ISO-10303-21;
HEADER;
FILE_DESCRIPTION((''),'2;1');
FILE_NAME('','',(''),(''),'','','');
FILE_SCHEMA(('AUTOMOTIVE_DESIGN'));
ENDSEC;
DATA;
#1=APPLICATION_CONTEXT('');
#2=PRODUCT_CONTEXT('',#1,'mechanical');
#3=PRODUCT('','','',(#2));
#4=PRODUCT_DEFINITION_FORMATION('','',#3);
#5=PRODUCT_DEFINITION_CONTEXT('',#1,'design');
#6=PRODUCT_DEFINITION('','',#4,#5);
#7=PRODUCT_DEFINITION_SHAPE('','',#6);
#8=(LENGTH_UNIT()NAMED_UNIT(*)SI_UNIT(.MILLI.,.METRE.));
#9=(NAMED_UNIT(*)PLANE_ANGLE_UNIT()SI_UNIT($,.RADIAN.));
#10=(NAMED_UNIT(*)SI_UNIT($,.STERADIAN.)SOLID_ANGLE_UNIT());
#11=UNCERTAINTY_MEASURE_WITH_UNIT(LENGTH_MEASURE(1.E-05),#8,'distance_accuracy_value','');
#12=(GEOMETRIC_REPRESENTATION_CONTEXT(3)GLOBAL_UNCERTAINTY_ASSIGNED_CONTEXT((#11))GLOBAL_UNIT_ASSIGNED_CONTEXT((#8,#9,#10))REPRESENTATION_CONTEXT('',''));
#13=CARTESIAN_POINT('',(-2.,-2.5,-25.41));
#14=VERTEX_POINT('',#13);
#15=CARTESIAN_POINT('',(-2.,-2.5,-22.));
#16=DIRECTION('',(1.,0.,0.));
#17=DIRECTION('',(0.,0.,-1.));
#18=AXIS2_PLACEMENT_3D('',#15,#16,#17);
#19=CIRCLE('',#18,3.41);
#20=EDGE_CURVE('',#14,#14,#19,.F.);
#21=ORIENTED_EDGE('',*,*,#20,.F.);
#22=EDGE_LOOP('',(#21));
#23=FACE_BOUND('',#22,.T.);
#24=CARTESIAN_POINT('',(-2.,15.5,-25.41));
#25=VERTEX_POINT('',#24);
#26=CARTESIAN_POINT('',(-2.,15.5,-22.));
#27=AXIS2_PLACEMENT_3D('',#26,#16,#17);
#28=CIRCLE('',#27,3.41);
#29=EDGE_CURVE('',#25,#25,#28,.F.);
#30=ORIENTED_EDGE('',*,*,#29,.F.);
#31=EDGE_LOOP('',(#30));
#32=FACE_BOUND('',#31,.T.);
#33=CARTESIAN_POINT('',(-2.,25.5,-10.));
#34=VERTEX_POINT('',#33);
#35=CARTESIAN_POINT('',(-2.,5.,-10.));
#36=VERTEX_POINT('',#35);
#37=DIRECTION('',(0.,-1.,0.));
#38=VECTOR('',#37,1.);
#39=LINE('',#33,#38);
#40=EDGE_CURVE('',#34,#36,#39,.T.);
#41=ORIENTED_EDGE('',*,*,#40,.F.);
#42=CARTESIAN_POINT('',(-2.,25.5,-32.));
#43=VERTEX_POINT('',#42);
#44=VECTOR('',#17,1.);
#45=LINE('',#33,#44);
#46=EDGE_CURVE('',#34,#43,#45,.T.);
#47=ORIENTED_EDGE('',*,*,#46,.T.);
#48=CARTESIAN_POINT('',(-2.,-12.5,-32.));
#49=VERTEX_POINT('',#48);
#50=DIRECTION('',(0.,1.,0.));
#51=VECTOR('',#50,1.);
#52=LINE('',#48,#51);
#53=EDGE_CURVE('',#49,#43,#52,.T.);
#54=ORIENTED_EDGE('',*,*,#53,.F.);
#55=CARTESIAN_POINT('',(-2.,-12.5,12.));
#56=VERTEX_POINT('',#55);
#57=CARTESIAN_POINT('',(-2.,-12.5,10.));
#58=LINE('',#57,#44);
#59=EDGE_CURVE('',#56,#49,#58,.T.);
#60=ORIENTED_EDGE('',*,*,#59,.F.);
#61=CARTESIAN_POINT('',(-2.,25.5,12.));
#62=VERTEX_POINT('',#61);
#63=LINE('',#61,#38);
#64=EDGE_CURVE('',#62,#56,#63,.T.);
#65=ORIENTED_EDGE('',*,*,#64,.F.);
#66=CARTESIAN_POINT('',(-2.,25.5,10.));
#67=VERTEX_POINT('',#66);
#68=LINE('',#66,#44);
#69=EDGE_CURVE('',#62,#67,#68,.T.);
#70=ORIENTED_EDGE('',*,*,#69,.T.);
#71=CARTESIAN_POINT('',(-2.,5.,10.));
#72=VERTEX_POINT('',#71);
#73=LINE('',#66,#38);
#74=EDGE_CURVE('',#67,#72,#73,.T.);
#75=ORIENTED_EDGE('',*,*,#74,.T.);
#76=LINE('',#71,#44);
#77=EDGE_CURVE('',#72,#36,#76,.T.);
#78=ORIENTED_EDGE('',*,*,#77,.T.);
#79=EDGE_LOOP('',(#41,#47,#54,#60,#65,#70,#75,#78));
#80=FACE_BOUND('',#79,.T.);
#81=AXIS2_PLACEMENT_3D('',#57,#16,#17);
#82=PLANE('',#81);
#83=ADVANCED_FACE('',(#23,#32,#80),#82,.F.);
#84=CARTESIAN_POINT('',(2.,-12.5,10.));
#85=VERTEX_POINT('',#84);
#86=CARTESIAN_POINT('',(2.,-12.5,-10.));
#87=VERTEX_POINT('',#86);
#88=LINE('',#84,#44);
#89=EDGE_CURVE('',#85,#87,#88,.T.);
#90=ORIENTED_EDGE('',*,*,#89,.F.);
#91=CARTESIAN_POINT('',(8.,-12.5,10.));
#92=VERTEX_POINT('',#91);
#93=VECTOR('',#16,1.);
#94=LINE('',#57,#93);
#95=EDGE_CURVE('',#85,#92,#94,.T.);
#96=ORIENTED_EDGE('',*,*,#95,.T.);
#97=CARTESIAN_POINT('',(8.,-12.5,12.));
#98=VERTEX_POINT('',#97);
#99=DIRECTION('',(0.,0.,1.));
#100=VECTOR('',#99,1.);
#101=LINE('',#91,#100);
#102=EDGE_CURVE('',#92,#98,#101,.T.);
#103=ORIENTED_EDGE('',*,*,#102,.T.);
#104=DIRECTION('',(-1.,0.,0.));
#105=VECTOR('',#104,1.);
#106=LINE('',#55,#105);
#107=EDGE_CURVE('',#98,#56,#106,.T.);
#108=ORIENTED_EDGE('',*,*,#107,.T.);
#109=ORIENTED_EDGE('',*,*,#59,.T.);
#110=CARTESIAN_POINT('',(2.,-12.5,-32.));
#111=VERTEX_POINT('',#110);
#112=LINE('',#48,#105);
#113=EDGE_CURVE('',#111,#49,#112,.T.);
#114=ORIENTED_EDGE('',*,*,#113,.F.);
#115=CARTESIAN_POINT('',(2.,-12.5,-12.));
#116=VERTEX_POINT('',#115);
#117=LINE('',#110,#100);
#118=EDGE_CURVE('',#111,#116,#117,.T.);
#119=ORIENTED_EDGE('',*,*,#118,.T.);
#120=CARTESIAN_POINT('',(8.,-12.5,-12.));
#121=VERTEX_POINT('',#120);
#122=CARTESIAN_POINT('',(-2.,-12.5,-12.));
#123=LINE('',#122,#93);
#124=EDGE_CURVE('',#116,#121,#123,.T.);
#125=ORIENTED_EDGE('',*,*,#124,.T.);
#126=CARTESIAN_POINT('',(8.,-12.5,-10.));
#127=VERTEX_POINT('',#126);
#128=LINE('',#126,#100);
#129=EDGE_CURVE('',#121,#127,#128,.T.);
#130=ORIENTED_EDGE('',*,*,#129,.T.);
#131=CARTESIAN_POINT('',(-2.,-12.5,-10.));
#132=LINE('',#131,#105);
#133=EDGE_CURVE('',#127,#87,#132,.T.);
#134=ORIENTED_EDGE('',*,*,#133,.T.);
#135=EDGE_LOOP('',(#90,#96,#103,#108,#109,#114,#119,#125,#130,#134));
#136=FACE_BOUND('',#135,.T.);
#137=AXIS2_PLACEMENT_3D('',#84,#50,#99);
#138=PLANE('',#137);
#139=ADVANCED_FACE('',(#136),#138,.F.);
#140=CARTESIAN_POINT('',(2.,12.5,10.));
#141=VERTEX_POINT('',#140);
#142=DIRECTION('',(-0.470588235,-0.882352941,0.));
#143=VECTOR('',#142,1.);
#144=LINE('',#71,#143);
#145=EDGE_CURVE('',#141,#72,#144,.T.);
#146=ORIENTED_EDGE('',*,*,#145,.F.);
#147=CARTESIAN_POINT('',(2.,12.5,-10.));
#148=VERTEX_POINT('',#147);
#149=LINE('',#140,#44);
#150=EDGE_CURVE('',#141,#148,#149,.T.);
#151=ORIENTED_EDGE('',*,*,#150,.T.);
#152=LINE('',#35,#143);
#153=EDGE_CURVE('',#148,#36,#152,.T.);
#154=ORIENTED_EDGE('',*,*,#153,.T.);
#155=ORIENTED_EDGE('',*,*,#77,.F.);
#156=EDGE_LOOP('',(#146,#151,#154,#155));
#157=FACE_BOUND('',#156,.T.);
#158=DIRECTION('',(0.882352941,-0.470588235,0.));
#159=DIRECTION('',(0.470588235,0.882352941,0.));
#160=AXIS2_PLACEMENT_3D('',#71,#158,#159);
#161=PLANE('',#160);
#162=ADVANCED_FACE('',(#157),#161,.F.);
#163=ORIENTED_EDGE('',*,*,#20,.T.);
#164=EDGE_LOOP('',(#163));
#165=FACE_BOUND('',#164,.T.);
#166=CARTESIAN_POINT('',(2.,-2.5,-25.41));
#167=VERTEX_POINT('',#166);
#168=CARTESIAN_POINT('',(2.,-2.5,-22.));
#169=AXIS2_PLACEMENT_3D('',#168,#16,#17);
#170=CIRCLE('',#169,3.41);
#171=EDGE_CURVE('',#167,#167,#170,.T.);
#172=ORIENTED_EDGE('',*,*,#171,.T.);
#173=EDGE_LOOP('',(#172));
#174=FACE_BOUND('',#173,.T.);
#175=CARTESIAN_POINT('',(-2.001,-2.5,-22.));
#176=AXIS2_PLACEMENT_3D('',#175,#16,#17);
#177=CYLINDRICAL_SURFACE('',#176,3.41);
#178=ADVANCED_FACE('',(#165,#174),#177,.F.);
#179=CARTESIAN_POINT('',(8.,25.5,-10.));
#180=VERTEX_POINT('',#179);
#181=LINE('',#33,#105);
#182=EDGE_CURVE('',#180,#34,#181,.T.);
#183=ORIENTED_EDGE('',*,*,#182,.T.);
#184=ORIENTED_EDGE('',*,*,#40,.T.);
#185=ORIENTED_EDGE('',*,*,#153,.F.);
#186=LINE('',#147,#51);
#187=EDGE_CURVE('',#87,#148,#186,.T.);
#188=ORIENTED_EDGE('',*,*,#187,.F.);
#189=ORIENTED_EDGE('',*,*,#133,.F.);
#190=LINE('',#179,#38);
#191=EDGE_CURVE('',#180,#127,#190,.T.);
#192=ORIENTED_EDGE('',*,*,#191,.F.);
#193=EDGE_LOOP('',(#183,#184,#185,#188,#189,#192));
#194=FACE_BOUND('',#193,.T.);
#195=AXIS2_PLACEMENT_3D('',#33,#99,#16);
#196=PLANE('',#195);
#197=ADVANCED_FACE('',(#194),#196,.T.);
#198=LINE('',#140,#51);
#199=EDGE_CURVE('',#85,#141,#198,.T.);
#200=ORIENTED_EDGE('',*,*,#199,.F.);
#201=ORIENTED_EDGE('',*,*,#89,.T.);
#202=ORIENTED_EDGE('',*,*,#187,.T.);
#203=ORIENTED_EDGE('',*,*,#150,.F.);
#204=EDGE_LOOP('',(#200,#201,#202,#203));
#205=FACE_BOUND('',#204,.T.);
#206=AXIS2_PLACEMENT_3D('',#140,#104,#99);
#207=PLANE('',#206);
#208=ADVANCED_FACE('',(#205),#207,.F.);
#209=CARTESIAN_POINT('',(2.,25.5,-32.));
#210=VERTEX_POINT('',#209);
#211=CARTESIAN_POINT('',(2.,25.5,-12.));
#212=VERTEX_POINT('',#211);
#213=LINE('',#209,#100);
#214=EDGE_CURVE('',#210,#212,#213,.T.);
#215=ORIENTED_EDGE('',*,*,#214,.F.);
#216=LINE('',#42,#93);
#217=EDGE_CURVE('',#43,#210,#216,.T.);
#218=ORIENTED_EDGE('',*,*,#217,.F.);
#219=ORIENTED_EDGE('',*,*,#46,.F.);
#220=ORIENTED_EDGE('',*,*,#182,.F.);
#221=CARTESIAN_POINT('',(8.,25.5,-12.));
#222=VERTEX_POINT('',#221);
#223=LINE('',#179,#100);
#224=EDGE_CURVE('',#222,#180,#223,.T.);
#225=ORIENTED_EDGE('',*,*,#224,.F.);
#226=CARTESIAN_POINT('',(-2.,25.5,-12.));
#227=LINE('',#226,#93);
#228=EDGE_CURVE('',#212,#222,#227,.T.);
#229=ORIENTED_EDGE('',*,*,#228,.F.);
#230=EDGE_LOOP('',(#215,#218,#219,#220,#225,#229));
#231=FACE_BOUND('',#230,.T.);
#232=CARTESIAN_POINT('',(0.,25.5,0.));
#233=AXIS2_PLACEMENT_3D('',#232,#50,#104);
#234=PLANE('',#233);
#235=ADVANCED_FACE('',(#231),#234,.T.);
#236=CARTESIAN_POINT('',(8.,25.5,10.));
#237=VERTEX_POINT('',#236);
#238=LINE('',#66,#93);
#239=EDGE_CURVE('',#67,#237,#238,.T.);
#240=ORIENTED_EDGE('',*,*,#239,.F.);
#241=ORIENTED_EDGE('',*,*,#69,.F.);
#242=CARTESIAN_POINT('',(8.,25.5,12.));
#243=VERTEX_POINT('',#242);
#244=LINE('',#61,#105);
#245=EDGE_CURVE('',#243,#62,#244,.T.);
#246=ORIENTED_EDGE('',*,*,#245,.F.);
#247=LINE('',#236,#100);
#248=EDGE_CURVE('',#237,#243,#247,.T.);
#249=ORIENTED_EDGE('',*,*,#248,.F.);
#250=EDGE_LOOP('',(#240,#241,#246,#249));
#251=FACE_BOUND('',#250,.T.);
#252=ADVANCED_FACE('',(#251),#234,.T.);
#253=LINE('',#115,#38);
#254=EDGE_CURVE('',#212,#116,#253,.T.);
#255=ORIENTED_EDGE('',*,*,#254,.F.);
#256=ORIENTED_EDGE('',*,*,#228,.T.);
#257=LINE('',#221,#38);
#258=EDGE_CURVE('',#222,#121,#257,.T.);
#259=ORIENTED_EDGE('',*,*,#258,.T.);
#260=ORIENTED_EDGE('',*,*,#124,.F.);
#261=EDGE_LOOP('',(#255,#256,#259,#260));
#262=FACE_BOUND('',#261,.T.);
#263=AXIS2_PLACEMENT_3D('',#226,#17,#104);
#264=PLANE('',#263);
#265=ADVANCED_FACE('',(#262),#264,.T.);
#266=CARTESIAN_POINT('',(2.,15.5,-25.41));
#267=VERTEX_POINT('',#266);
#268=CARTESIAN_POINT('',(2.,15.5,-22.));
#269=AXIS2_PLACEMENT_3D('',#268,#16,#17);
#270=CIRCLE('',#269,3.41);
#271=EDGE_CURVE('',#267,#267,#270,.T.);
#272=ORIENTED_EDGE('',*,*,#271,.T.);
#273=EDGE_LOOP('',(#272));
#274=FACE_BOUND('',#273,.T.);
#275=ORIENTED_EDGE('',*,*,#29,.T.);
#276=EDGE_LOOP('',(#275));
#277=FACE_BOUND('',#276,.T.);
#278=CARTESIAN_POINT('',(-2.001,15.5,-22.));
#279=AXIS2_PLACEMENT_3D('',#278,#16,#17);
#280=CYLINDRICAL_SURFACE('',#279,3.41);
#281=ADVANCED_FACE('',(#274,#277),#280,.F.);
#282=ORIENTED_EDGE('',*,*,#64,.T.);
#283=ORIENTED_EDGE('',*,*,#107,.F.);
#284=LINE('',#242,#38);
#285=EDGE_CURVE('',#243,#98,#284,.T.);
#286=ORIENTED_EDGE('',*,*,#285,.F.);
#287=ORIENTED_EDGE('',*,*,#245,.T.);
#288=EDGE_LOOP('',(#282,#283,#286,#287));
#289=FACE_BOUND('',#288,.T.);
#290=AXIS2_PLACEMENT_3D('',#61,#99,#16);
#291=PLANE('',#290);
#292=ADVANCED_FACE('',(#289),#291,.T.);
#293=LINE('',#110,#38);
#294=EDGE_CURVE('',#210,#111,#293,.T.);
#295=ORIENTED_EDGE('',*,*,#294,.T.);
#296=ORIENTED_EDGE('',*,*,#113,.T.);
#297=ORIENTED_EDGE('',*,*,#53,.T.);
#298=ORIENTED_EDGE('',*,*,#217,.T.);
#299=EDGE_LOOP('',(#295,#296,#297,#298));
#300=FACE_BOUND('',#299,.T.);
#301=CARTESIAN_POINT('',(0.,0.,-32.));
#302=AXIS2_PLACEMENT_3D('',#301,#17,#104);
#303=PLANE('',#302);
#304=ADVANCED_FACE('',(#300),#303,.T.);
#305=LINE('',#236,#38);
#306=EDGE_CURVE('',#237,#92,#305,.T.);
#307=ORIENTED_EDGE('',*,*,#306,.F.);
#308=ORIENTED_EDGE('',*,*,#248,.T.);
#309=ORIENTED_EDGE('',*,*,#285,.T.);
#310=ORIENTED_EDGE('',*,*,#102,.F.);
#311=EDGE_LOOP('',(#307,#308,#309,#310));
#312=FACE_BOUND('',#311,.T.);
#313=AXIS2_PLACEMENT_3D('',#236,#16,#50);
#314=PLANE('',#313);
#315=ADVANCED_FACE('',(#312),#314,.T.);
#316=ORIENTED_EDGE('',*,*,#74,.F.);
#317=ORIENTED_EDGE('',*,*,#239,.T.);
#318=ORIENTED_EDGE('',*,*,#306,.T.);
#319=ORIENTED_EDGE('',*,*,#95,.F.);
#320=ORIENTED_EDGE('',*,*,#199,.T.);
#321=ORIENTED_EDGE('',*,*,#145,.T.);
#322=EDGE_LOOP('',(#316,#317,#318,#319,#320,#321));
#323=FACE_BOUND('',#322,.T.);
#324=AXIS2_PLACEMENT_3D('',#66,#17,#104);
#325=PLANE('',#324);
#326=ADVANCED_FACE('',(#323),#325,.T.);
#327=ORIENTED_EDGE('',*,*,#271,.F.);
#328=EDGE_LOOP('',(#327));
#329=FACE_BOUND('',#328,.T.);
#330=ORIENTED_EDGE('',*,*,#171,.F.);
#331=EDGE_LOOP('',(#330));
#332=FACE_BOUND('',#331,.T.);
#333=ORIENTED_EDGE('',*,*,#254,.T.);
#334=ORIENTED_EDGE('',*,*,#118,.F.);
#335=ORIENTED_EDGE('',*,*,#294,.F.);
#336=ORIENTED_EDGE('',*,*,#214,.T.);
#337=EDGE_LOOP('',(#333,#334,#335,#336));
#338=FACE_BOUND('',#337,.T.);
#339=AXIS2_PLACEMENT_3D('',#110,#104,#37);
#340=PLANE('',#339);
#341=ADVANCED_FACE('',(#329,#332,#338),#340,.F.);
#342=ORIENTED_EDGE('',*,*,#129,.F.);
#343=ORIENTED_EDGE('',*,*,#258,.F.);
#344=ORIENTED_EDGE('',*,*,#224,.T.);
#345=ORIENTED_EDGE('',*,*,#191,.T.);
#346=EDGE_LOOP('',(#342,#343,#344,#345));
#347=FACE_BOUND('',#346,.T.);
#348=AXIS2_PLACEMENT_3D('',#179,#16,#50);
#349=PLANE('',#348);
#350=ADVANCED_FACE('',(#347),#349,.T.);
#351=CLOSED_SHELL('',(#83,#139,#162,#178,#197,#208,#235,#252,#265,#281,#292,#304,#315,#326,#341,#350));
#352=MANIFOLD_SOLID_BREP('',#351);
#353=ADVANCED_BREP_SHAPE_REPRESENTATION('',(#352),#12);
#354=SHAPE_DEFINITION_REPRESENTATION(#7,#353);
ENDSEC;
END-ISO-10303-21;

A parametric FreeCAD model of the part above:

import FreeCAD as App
import Part
import Sketcher
from FreeCAD import Vector
Q = App.Units.Quantity

doc = App.newDocument("Part")
params = doc.addObject("Spreadsheet::Sheet", "Params")
for row, (alias, value) in enumerate([
    ("sketch1_width", "4 mm"),
    ("sketch1_height", "25 mm"),
    ("sketch1_height2", "17.5 mm"),
    ("pad1_length", "20 mm"),
    ("sketch2_width", "10 mm"),
    ("sketch2_height", "2 mm"),
    ("pad2_length", "38 mm"),
    ("sketch3_width", "4 mm"),
    ("sketch3_height", "38 mm"),
    ("pad3_length", "20 mm"),
    ("sketch4_diameter", "6.82 mm"),
    ("sketch5_diameter", "6.82 mm"),
], start=1):
    params.set(f"A{row}", alias)
    params.set(f"B{row}", "=" + value)
    params.setAlias(f"B{row}", alias)

body = doc.addObject("PartDesign::Body", "Body")

# Sketch on XY plane
sketch1 = body.newObject("Sketcher::SketchObject", "Sketch")
sketch1.AttachmentSupport = (doc.getObject("XY_Plane"), [""])
sketch1.MapMode = "FlatFace"
sketch1.addGeometry([
    Part.LineSegment(Vector(2, 12.5, 0), Vector(-2, 5, 0)),
    Part.LineSegment(Vector(-2, 5, 0), Vector(-2, -12.5, 0)),
    Part.LineSegment(Vector(-2, -12.5, 0), Vector(2, -12.5, 0)),
    Part.LineSegment(Vector(2, -12.5, 0), Vector(2, 12.5, 0)),
], False)
sketch1.addConstraint([
    Sketcher.Constraint("Coincident", 0, 2, 1, 1),
    Sketcher.Constraint("Coincident", 1, 2, 2, 1),
    Sketcher.Constraint("Coincident", 2, 2, 3, 1),
    Sketcher.Constraint("Coincident", 3, 2, 0, 1),
    Sketcher.Constraint("Vertical", 1),
    Sketcher.Constraint("Horizontal", 2),
    Sketcher.Constraint("Vertical", 3),
    Sketcher.Constraint("Symmetric", 1, 2, 3, 2, -1, 1),
    Sketcher.Constraint("DistanceX", 2, 1, 2, 2, Q("4 mm")),
    Sketcher.Constraint("DistanceY", 3, 1, 3, 2, Q("25 mm")),
    Sketcher.Constraint("DistanceY", 1, 2, 1, 1, Q("17.5 mm")),
])
sketch1.setExpression("Constraints[8]", "Params.sketch1_width")
sketch1.setExpression("Constraints[9]", "Params.sketch1_height")
sketch1.setExpression("Constraints[10]", "Params.sketch1_height2")
pad1 = body.newObject("PartDesign::Pad", "Pad")
pad1.Profile = sketch1
pad1.setExpression("Length", "Params.pad1_length")
pad1.Midplane = True

# Sketch on XZ plane
sketch2 = body.newObject("Sketcher::SketchObject", "Sketch001")
sketch2.AttachmentSupport = (doc.getObject("XZ_Plane"), [""])
sketch2.MapMode = "FlatFace"
sketch2.AttachmentOffset = App.Placement(Vector(0, 0, 12.5), App.Rotation())
sketch2.addGeometry([
    Part.LineSegment(Vector(-2, 12, 0), Vector(-2, 10, 0)),  # 0
    Part.LineSegment(Vector(-2, 10, 0), Vector(8, 10, 0)),  # 1
    Part.LineSegment(Vector(8, 10, 0), Vector(8, 12, 0)),  # 2
    Part.LineSegment(Vector(8, 12, 0), Vector(-2, 12, 0)),  # 3
    Part.LineSegment(Vector(-2, -10, 0), Vector(-2, -12, 0)),  # 4
    Part.LineSegment(Vector(-2, -12, 0), Vector(8, -12, 0)),  # 5
    Part.LineSegment(Vector(8, -12, 0), Vector(8, -10, 0)),  # 6
    Part.LineSegment(Vector(8, -10, 0), Vector(-2, -10, 0)),  # 7
], False)
sketch2.addConstraint([
    Sketcher.Constraint("Coincident", 0, 2, 1, 1),
    Sketcher.Constraint("Coincident", 1, 2, 2, 1),
    Sketcher.Constraint("Coincident", 2, 2, 3, 1),
    Sketcher.Constraint("Coincident", 3, 2, 0, 1),
    Sketcher.Constraint("Coincident", 4, 2, 5, 1),
    Sketcher.Constraint("Coincident", 5, 2, 6, 1),
    Sketcher.Constraint("Coincident", 6, 2, 7, 1),
    Sketcher.Constraint("Coincident", 7, 2, 4, 1),
    Sketcher.Constraint("Vertical", 0),
    Sketcher.Constraint("Horizontal", 1),
    Sketcher.Constraint("Vertical", 2),
    Sketcher.Constraint("Horizontal", 3),
    Sketcher.Constraint("Vertical", 4),
    Sketcher.Constraint("Horizontal", 5),
    Sketcher.Constraint("Vertical", 6),
    Sketcher.Constraint("Horizontal", 7),
    Sketcher.Constraint("Symmetric", 3, 2, 4, 2, -1),
    Sketcher.Constraint("Symmetric", 1, 2, 6, 2, -1),
    Sketcher.Constraint("DistanceX", 1, 1, 1, 2, Q("10 mm")),
    Sketcher.Constraint("DistanceY", 0, 2, 0, 1, Q("2 mm")),
    Sketcher.Constraint("DistanceX", 0, 2, -1, 1, Q("2 mm")),
    Sketcher.Constraint("DistanceY", -1, 1, 0, 2, Q("10 mm")),
])
sketch2.setExpression("Constraints[18]", "Params.sketch2_width")
sketch2.setExpression("Constraints[19]", "Params.sketch2_height")
pad2 = body.newObject("PartDesign::Pad", "Pad001")
pad2.Profile = sketch2
pad2.setExpression("Length", "Params.pad2_length")
pad2.Reversed = True

# Sketch on XY plane
sketch3 = body.newObject("Sketcher::SketchObject", "Sketch002")
sketch3.AttachmentSupport = (doc.getObject("XY_Plane"), [""])
sketch3.MapMode = "FlatFace"
sketch3.AttachmentOffset = App.Placement(Vector(0, 0, -12), App.Rotation())
sketch3.addGeometry([
    Part.LineSegment(Vector(2, 25.5, 0), Vector(2, -12.5, 0)),
    Part.LineSegment(Vector(2, -12.5, 0), Vector(-2, -12.5, 0)),
    Part.LineSegment(Vector(-2, -12.5, 0), Vector(-2, 25.5, 0)),
    Part.LineSegment(Vector(-2, 25.5, 0), Vector(2, 25.5, 0)),
], False)
sketch3.addConstraint([
    Sketcher.Constraint("Coincident", 0, 2, 1, 1),
    Sketcher.Constraint("Coincident", 1, 2, 2, 1),
    Sketcher.Constraint("Coincident", 2, 2, 3, 1),
    Sketcher.Constraint("Coincident", 3, 2, 0, 1),
    Sketcher.Constraint("Vertical", 0),
    Sketcher.Constraint("Horizontal", 1),
    Sketcher.Constraint("Vertical", 2),
    Sketcher.Constraint("Horizontal", 3),
    Sketcher.Constraint("DistanceX", 1, 2, 1, 1, Q("4 mm")),
    Sketcher.Constraint("DistanceY", 0, 2, 0, 1, Q("38 mm")),
    Sketcher.Constraint("DistanceX", -1, 1, 0, 2, Q("2 mm")),
    Sketcher.Constraint("DistanceY", 0, 2, -1, 1, Q("12.5 mm")),
])
sketch3.setExpression("Constraints[8]", "Params.sketch3_width")
sketch3.setExpression("Constraints[9]", "Params.sketch3_height")
pad3 = body.newObject("PartDesign::Pad", "Pad002")
pad3.Profile = sketch3
pad3.setExpression("Length", "Params.pad3_length")
pad3.Reversed = True

# Sketch on YZ plane
sketch4 = body.newObject("Sketcher::SketchObject", "Sketch003")
sketch4.AttachmentSupport = (doc.getObject("YZ_Plane"), [""])
sketch4.MapMode = "FlatFace"
sketch4.AttachmentOffset = App.Placement(Vector(0, 0, 2), App.Rotation())
sketch4.addGeometry(Part.Circle(Vector(-2.5, -22, 0), Vector(0, 0, 1), 3.41), False)
sketch4.addConstraint([
    Sketcher.Constraint("Diameter", 0, Q("6.82 mm")),
    Sketcher.Constraint("DistanceY", 0, 3, -1, 1, Q("22 mm")),
    Sketcher.Constraint("DistanceX", 0, 3, -1, 1, Q("2.5 mm")),
])
sketch4.setExpression("Constraints[0]", "Params.sketch4_diameter")
pocket1 = body.newObject("PartDesign::Pocket", "Pocket")
pocket1.Profile = sketch4
pocket1.Type = "UpToFirst"

# Sketch on YZ plane
sketch5 = body.newObject("Sketcher::SketchObject", "Sketch004")
sketch5.AttachmentSupport = (doc.getObject("YZ_Plane"), [""])
sketch5.MapMode = "FlatFace"
sketch5.AttachmentOffset = App.Placement(Vector(0, 0, 2), App.Rotation())
sketch5.addGeometry(Part.Circle(Vector(15.5, -22, 0), Vector(0, 0, 1), 3.41), False)
sketch5.addConstraint([
    Sketcher.Constraint("Diameter", 0, Q("6.82 mm")),
    Sketcher.Constraint("DistanceY", 0, 3, -1, 1, Q("22 mm")),
    Sketcher.Constraint("DistanceX", -1, 1, 0, 3, Q("15.5 mm")),
])
sketch5.setExpression("Constraints[0]", "Params.sketch5_diameter")
pocket2 = body.newObject("PartDesign::Pocket", "Pocket001")
pocket2.Profile = sketch5
pocket2.Type = "UpToFirst"

doc.recompute()
